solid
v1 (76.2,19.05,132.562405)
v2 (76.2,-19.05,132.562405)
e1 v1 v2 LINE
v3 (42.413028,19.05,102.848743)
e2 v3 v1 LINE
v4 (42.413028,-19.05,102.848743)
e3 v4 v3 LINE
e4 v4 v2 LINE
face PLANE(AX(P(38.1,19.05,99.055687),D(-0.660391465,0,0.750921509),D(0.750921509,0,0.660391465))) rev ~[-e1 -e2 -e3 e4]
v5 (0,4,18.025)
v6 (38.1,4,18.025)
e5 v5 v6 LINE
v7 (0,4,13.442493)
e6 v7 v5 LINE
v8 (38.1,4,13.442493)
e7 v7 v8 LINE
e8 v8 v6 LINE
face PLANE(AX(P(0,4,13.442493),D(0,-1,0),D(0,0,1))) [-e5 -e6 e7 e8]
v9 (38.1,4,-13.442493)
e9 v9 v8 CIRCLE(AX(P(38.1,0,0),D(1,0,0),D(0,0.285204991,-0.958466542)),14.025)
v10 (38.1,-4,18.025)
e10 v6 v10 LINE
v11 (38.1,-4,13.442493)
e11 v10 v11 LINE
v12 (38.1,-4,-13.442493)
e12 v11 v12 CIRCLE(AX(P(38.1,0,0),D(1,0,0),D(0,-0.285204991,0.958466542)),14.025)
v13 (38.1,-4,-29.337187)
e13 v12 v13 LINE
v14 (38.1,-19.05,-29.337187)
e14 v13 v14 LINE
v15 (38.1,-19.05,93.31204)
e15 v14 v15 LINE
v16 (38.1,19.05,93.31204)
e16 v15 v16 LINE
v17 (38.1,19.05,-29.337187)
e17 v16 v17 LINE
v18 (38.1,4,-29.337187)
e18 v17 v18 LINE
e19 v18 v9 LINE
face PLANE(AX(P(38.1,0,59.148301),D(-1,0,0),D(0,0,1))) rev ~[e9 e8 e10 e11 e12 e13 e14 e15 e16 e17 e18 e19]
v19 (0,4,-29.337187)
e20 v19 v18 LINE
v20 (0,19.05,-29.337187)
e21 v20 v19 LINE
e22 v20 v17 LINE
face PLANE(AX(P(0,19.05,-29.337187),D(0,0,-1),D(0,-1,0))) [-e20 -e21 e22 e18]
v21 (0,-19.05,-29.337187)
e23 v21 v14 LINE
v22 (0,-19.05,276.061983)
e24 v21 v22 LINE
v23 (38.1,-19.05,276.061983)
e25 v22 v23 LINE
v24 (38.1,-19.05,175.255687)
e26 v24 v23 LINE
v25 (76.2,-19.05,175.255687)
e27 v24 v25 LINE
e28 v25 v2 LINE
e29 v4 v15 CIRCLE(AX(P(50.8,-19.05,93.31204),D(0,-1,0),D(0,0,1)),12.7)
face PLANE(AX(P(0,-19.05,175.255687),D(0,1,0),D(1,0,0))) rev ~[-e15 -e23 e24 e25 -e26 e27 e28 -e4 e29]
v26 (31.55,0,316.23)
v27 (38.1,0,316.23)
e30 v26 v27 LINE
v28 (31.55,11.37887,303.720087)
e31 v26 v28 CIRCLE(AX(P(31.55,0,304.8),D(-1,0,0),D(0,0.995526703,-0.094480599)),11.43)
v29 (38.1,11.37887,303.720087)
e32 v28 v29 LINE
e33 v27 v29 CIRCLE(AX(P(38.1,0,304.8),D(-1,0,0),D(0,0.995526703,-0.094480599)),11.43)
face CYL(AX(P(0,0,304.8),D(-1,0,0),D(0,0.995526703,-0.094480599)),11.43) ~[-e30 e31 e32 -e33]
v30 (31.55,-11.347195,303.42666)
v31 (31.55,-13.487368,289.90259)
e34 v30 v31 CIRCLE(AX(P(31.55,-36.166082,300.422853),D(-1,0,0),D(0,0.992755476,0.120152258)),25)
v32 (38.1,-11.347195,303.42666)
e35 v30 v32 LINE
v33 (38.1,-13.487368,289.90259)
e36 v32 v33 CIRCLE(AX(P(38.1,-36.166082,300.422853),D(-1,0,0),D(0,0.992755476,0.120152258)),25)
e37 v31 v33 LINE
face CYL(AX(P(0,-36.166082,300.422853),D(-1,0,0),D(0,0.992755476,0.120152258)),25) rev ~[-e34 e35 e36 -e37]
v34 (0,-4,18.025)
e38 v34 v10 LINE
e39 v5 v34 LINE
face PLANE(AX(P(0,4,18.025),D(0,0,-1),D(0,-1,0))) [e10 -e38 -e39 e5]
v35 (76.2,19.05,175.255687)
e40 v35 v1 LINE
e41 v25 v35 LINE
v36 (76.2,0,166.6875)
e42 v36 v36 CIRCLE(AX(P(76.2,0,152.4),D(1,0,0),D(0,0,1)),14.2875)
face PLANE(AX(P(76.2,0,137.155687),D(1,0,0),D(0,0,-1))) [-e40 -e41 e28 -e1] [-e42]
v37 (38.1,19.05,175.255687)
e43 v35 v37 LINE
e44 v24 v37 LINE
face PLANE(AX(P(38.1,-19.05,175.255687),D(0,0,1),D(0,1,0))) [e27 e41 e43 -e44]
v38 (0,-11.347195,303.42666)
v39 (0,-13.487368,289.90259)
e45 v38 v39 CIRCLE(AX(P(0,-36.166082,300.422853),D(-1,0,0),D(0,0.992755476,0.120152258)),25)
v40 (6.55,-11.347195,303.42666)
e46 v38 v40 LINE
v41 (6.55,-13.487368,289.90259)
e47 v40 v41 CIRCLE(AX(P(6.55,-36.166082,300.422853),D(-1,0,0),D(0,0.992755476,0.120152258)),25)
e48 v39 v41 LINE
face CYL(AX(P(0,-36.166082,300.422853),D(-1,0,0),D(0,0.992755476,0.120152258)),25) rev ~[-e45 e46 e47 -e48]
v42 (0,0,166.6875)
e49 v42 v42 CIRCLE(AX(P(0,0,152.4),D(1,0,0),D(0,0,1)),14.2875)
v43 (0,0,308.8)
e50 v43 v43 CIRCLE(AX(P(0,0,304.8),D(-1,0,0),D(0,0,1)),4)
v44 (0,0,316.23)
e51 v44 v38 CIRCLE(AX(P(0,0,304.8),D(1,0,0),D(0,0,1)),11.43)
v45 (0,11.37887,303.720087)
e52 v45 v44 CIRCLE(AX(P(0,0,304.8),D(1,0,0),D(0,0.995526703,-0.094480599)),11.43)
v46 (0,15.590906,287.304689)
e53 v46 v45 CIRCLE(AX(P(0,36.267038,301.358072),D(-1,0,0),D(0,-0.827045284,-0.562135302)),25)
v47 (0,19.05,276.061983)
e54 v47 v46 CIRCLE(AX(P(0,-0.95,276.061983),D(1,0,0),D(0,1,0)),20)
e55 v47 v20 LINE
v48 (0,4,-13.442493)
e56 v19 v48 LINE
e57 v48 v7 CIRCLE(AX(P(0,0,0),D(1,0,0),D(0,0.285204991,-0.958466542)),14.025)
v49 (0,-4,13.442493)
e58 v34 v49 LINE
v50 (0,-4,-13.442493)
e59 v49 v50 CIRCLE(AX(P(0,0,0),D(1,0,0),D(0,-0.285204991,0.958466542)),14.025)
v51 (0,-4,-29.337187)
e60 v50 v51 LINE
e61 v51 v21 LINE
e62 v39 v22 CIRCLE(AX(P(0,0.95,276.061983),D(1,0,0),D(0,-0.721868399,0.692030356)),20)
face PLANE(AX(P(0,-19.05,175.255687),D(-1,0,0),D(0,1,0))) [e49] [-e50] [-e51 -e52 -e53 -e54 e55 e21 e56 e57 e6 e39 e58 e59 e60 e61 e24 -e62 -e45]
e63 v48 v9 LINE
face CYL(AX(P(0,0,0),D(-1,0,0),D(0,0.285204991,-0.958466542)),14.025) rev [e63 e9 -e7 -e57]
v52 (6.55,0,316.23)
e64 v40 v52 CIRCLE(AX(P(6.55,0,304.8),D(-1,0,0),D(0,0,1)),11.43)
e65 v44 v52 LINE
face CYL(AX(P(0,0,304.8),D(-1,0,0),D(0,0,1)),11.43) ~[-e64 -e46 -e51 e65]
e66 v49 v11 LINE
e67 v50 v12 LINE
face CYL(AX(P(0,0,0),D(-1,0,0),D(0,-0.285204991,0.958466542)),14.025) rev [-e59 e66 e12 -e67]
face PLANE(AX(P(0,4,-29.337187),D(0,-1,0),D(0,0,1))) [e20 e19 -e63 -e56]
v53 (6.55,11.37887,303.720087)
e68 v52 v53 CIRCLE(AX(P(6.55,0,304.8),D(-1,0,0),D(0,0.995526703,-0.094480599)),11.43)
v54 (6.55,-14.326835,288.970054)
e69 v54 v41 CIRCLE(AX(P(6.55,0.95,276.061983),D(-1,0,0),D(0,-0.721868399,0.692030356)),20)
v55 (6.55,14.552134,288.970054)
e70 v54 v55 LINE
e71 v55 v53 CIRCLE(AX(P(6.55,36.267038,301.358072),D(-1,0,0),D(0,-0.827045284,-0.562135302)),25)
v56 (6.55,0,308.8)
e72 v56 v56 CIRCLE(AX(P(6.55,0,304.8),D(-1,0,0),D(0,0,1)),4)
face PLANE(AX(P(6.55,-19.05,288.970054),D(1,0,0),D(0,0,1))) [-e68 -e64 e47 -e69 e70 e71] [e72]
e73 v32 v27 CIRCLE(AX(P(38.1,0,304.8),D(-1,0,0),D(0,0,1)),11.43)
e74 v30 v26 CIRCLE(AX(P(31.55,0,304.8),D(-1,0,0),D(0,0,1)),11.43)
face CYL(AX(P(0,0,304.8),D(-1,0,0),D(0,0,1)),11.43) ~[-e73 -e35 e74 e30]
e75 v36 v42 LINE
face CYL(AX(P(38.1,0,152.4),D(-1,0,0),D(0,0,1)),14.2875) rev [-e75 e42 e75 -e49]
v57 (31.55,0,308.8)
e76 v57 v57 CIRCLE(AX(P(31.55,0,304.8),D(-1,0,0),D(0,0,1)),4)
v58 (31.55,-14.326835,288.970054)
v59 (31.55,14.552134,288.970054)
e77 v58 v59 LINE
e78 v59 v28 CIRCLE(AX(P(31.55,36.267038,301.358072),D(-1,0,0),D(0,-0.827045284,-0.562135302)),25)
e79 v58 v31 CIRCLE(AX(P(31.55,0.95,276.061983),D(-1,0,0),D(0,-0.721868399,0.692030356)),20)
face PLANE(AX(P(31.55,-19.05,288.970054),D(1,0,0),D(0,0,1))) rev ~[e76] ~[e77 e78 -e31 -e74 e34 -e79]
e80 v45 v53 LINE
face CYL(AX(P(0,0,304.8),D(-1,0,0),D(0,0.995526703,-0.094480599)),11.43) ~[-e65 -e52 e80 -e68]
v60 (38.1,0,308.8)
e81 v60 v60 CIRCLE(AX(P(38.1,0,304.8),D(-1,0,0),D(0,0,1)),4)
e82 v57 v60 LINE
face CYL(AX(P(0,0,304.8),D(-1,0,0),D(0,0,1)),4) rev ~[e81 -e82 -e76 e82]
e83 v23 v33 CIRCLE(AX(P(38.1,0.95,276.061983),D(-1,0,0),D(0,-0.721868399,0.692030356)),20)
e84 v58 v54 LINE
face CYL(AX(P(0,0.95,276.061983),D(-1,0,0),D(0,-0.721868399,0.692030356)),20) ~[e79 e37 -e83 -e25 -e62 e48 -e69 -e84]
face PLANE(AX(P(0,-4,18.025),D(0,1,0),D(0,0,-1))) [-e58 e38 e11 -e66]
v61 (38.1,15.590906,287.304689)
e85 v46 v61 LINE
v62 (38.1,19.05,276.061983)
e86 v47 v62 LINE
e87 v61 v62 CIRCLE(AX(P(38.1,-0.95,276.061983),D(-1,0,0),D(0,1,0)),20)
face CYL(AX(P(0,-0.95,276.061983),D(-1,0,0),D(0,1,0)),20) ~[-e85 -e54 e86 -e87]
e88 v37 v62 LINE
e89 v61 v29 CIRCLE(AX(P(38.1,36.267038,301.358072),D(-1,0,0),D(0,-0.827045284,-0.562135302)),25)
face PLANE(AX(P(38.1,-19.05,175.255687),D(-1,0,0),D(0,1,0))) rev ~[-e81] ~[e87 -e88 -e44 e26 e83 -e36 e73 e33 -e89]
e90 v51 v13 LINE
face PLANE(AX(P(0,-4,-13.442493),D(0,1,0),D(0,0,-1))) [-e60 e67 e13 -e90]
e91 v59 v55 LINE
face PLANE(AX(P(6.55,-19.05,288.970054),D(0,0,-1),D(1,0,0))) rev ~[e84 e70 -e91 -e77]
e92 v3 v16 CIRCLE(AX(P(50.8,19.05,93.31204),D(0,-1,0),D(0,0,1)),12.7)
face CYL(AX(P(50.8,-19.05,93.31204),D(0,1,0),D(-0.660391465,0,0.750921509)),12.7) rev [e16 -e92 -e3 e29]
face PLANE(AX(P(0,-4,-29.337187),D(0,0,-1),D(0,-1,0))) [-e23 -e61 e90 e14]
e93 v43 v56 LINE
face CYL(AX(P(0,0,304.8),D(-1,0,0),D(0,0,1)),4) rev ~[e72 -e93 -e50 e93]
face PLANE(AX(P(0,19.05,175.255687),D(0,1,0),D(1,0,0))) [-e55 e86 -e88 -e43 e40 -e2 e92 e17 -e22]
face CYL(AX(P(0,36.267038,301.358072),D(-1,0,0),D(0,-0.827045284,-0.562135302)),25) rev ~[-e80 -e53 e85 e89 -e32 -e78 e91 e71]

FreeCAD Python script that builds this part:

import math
import FreeCAD as App
import Part
import Sketcher

V = App.Vector
Q = App.Units.Quantity


def edges_at(feature, points):
    """Names of the edges that pass closest to the given points."""
    edges = feature.Shape.Edges
    near = lambda p: min(range(len(edges)), key=lambda i: edges[i].distToShape(Part.Vertex(*p))[0])
    return sorted({f"Edge{near(p) + 1}" for p in points})


def add_polygon(sketch, points):
    """Adds a closed chain of lines whose ends are joined by coincident constraints."""
    first, n = sketch.GeometryCount, len(points)
    for a, b in zip(points, points[1:] + points[:1]):
        sketch.addGeometry(Part.LineSegment(App.Vector(*a, 0), App.Vector(*b, 0)), False)
    for i in range(n):
        sketch.addConstraint(Sketcher.Constraint("Coincident", first + i, 2, first + (i + 1) % n, 1))

doc = App.newDocument("Part")
params = doc.addObject("Spreadsheet::Sheet", "Params")
for row, (alias, value) in enumerate([
    ("sketch1_diameter", "1.125 in"),
    ("sketch1_width", "1.5 in"),
    ("pad1_length", "1.5 in"),
    ("sketch2_height", "3 in"),
    ("sketch2_diameter", "1.125 in"),
    ("sketch2_width", "1.5 in"),
    ("pad2_length", "1.5 in"),
    ("pocket1_length", "1.5 in"),
    ("fillet_radius", "0.5 in"),
    ("sketch4_width", "1.5 in"),
    ("pad3_length", "6 in"),
    ("sketch5_radius", "0.45 in"),
    ("pocket2_length", "6 in"),
    ("pocket3_length", "6 in"),
], start=1):
    params.set(f"A{row}", alias)
    params.set(f"B{row}", "=" + value)
    params.setAlias(f"B{row}", alias)

body = doc.addObject("PartDesign::Body", "Body")

# Sketch on YZ plane
sketch1 = doc.addObject("Sketcher::SketchObject", "Sketch")
body.addObject(sketch1)
sketch1.AttachmentSupport = (doc.YZ_Plane, [""])
sketch1.MapMode = "FlatFace"
sketch1.addGeometry([
    Part.LineSegment(V(-19.1, 175.3, 0), V(-19.1, -29.3, 0)),  # 0
    Part.LineSegment(V(-19.1, -29.3, 0), V(-4, -29.3, 0)),  # 1
    Part.LineSegment(V(-4, -29.3, 0), V(-4, -13.4, 0)),  # 2
    Part.ArcOfCircle(Part.Circle(V(0, 0, 0), V(0, 0, 1), 14), math.radians(107), math.radians(253)),  # 3
    Part.LineSegment(V(-4, 13.4, 0), V(-4, 18, 0)),  # 4
    Part.LineSegment(V(-4, 18, 0), V(4, 18, 0)),  # 5
    Part.LineSegment(V(4, 18, 0), V(4, 13.4, 0)),  # 6
    Part.ArcOfCircle(Part.Circle(V(0, 0, 0), V(0, 0, 1), 14), math.radians(-73), math.radians(73)),  # 7
    Part.LineSegment(V(4, -13.4, 0), V(4, -29.3, 0)),  # 8
    Part.LineSegment(V(4, -29.3, 0), V(19.1, -29.3, 0)),  # 9
    Part.LineSegment(V(19.1, -29.3, 0), V(19.1, 175.3, 0)),  # 10
    Part.LineSegment(V(19.1, 175.3, 0), V(-19.1, 175.3, 0)),  # 11
    Part.Circle(V(0, 152.4, 0), V(0, 0, 1), 14.3),  # 12
], False)
sketch1.addConstraint([
    Sketcher.Constraint("Coincident", 0, 2, 1, 1),
    Sketcher.Constraint("Coincident", 1, 2, 2, 1),
    Sketcher.Constraint("Coincident", 2, 2, 3, 2),
    Sketcher.Constraint("Coincident", 3, 1, 4, 1),
    Sketcher.Constraint("Coincident", 4, 2, 5, 1),
    Sketcher.Constraint("Coincident", 5, 2, 6, 1),
    Sketcher.Constraint("Coincident", 6, 2, 7, 2),
    Sketcher.Constraint("Coincident", 7, 1, 8, 1),
    Sketcher.Constraint("Coincident", 8, 2, 9, 1),
    Sketcher.Constraint("Coincident", 9, 2, 10, 1),
    Sketcher.Constraint("Coincident", 10, 2, 11, 1),
    Sketcher.Constraint("Coincident", 11, 2, 0, 1),
    Sketcher.Constraint("Vertical", 0),
    Sketcher.Constraint("Horizontal", 1),
    Sketcher.Constraint("Vertical", 2),
    Sketcher.Constraint("Vertical", 4),
    Sketcher.Constraint("Horizontal", 5),
    Sketcher.Constraint("Vertical", 6),
    Sketcher.Constraint("Vertical", 8),
    Sketcher.Constraint("Horizontal", 9),
    Sketcher.Constraint("Vertical", 10),
    Sketcher.Constraint("Horizontal", 11),
    Sketcher.Constraint("Coincident", 3, 3, -1, 1),
    Sketcher.Constraint("Coincident", 7, 3, -1, 1),
    Sketcher.Constraint("Equal", 3, 7),
    Sketcher.Constraint("Symmetric", 1, 2, 8, 2, -2),
    Sketcher.Constraint("PointOnObject", 12, 3, -2),
    Sketcher.Constraint("Horizontal", 3, 1, 6, 2),
    Sketcher.Constraint("Vertical", 2, 2, 3, 1),
    Sketcher.Constraint("Equal", 1, 9),
    Sketcher.Constraint("Diameter", 12, Q("1.125 in")),
    Sketcher.Constraint("DistanceX", 11, 2, 11, 1, Q("1.5 in")),
    Sketcher.Constraint("DistanceY", -1, 1, 12, 3, Q("6 in")),
    Sketcher.Constraint("Radius", 3, 14.025),
    Sketcher.Constraint("DistanceX", 1, 1, 1, 2, 15.05),
    Sketcher.Constraint("DistanceY", -1, 1, 4, 2, 18.025),
    Sketcher.Constraint("DistanceY", 0, 2, 0, 1, 204.592874),
    Sketcher.Constraint("DistanceY", 2, 1, 2, 2, 15.894693),
])
sketch1.setExpression("Constraints[30]", "Params.sketch1_diameter")
sketch1.setExpression("Constraints[31]", "Params.sketch1_width")
pad1 = doc.addObject("PartDesign::Pad", "Pad")
body.addObject(pad1)
pad1.Profile = sketch1
pad1.setExpression("Length", "Params.pad1_length")

# Sketch on YZ plane
sketch2 = doc.addObject("Sketcher::SketchObject", "Sketch001")
body.addObject(sketch2)
sketch2.AttachmentSupport = (doc.YZ_Plane, [""])
sketch2.MapMode = "FlatFace"
sketch2.AttachmentOffset = App.Placement(V(0, 0, 1.5 * 25.4), App.Rotation())
add_polygon(sketch2, [(19, 175), (-19, 175), (-19, 99), (19, 99)])  # lines 0-3
sketch2.addGeometry(Part.Circle(V(0, 152, 0), V(0, 0, 1), 14), False)  # 4
sketch2.addConstraint([
    Sketcher.Constraint("Horizontal", 0),
    Sketcher.Constraint("Vertical", 1),
    Sketcher.Constraint("Horizontal", 2),
    Sketcher.Constraint("Vertical", 3),
    Sketcher.Constraint("PointOnObject", 4, 3, -2),
    Sketcher.Constraint("DistanceY", 1, 2, 1, 1, Q("3 in")),
    Sketcher.Constraint("Diameter", 4, Q("1.125 in")),
    Sketcher.Constraint("DistanceX", 0, 2, 0, 1, Q("1.5 in")),
    Sketcher.Constraint("DistanceY", -1, 1, 4, 3, Q("6 in")),
    Sketcher.Constraint("DistanceX", 0, 2, -1, 1, Q("0.75 in")),
    Sketcher.Constraint("DistanceY", -1, 1, 0, 2, 175.255687),
])
sketch2.setExpression("Constraints[9]", "Params.sketch2_height")
sketch2.setExpression("Constraints[10]", "Params.sketch2_diameter")
sketch2.setExpression("Constraints[11]", "Params.sketch2_width")
pad2 = doc.addObject("PartDesign::Pad", "Pad001")
body.addObject(pad2)
pad2.Profile = sketch2
pad2.setExpression("Length", "Params.pad2_length")

# Sketch on XZ plane
sketch3 = doc.addObject("Sketcher::SketchObject", "Sketch002")
body.addObject(sketch3)
sketch3.AttachmentSupport = (doc.XZ_Plane, [""])
sketch3.MapMode = "FlatFace"
sketch3.AttachmentOffset = App.Placement(V(0, 0, -0.75 * 25.4), App.Rotation())
add_polygon(sketch3, [(38, 99), (76, 133), (94, 84)])  # lines 0-2
sketch3.addConstraint([
    Sketcher.Constraint("DistanceX", -1, 1, 0, 2, Q("3 in")),
    Sketcher.Constraint("DistanceX", -1, 1, 2, 2, Q("1.5 in")),
    Sketcher.Constraint("Distance", 0, 50.73766),
    Sketcher.Constraint("DistanceX", -1, 1, 1, 2, 94.277322),
    Sketcher.Constraint("DistanceY", 1, 2, 2, 2, 14.606459),
    Sketcher.Constraint("DistanceY", -1, 1, 0, 2, 132.562405),
])
pocket1 = doc.addObject("PartDesign::Pocket", "Pocket")
body.addObject(pocket1)
pocket1.Profile = sketch3
pocket1.setExpression("Length", "Params.pocket1_length")
pocket1.Reversed = True
doc.recompute()

fillet = doc.addObject("PartDesign::Fillet", "Fillet")
body.addObject(fillet)
fillet.Base = (pocket1, edges_at(pocket1, [(38.1, 0, 99.056)]))
fillet.setExpression("Radius", "Params.fillet_radius")

# Sketch on XY plane
sketch4 = doc.addObject("Sketcher::SketchObject", "Sketch003")
body.addObject(sketch4)
sketch4.AttachmentSupport = (doc.XY_Plane, [""])
sketch4.MapMode = "FlatFace"
sketch4.AttachmentOffset = App.Placement(V(0, 0, 175.255687), App.Rotation())
add_polygon(sketch4, [(0, 19), (0, -19), (38, -19), (38, 19)])  # lines 0-3
sketch4.addConstraint([
    Sketcher.Constraint("Vertical", 0),
    Sketcher.Constraint("Horizontal", 1),
    Sketcher.Constraint("Vertical", 2),
    Sketcher.Constraint("Horizontal", 3),
    Sketcher.Constraint("Symmetric", 0, 2, 3, 2, -1, 1),
    Sketcher.Constraint("Equal", 3, 0),
    Sketcher.Constraint("DistanceX", 1, 1, 1, 2, Q("1.5 in")),
])
sketch4.setExpression("Constraints[10]", "Params.sketch4_width")
pad3 = doc.addObject("PartDesign::Pad", "Pad002")
body.addObject(pad3)
pad3.Profile = sketch4
pad3.setExpression("Length", "Params.pad3_length")

# Sketch on YZ plane
sketch5 = doc.addObject("Sketcher::SketchObject", "Sketch004")
body.addObject(sketch5)
sketch5.AttachmentSupport = (doc.YZ_Plane, [""])
sketch5.MapMode = "FlatFace"
sketch5.addGeometry([
    Part.LineSegment(V(26.7, 276.1, 0), V(19.1, 276.1, 0)),  # 0
    Part.ArcOfCircle(Part.Circle(V(-1, 276.1, 0), V(0, 0, 1), 20), math.radians(0), math.radians(34)),  # 1
    Part.ArcOfCircle(Part.Circle(V(36.3, 301.4, 0), V(0, 0, 1), 25), math.radians(175), math.radians(214)),  # 2
    Part.ArcOfCircle(Part.Circle(V(0, 304.8, 0), V(0, 0, 1), 11.4), math.radians(-5), math.radians(90)),  # 3
    Part.ArcOfCircle(Part.Circle(V(0, 304.8, 0), V(0, 0, 1), 11.4), math.radians(90), math.radians(187)),  # 4
    Part.ArcOfCircle(Part.Circle(V(-36.2, 300.4, 0), V(0, 0, 1), 25), math.radians(-25), math.radians(7)),  # 5
    Part.ArcOfCircle(Part.Circle(V(1, 276.1, 0), V(0, 0, 1), 20), math.radians(136), math.radians(180)),  # 6
    Part.LineSegment(V(-19.1, 276.1, 0), V(-31.4, 276.1, 0)),  # 7
    Part.LineSegment(V(-31.4, 276.1, 0), V(-31.4, 335, 0)),  # 8
    Part.LineSegment(V(-31.4, 335, 0), V(26.7, 335, 0)),  # 9
    Part.LineSegment(V(26.7, 335, 0), V(26.7, 276.1, 0)),  # 10
    Part.Circle(V(0, 304.8, 0), V(0, 0, 1), 4),  # 11
], False)
sketch5.addConstraint([
    Sketcher.Constraint("Coincident", 0, 2, 1, 1),
    Sketcher.Constraint("Tangent", 1, 2, 2, 2),
    Sketcher.Constraint("Tangent", 2, 1, 3, 1),
    Sketcher.Constraint("Tangent", 3, 2, 4, 1),
    Sketcher.Constraint("Tangent", 4, 2, 5, 2),
    Sketcher.Constraint("Coincident", 5, 1, 6, 1),
    Sketcher.Constraint("Coincident", 6, 2, 7, 1),
    Sketcher.Constraint("Coincident", 7, 2, 8, 1),
    Sketcher.Constraint("Coincident", 8, 2, 9, 1),
    Sketcher.Constraint("Coincident", 9, 2, 10, 1),
    Sketcher.Constraint("Coincident", 10, 2, 0, 1),
    Sketcher.Constraint("Horizontal", 0),
    Sketcher.Constraint("Horizontal", 7),
    Sketcher.Constraint("Vertical", 8),
    Sketcher.Constraint("Horizontal", 9),
    Sketcher.Constraint("Vertical", 10),
    Sketcher.Constraint("Coincident", 11, 3, 3, 3),
    Sketcher.Constraint("Equal", 3, 4),
    Sketcher.Constraint("Equal", 2, 5),
    Sketcher.Constraint("Equal", 1, 6),
    Sketcher.Constraint("Symmetric", 1, 3, 6, 3, -2),
    Sketcher.Constraint("PointOnObject", 3, 3, -2),
    Sketcher.Constraint("PointOnObject", 3, 2, -2),
    Sketcher.Constraint("Horizontal", 6, 3, 0, 2),
    Sketcher.Constraint("Horizontal", 0, 2, 6, 2),
    Sketcher.Constraint("Radius", 3, Q("0.45 in")),
    Sketcher.Constraint("DistanceY", -1, 1, 3, 3, Q("12 in")),
    Sketcher.Constraint("Diameter", 11, 8.0),
    Sketcher.Constraint("DistanceX", -1, 1, 0, 2, Q("0.75 in")),
    Sketcher.Constraint("Radius", 1, 20.0),
    Sketcher.Constraint("Radius", 2, 25.0),
    Sketcher.Constraint("DistanceY", 8, 1, 8, 2, 58.976239),
    Sketcher.Constraint("DistanceX", 0, 2, 0, 1, 7.691788),
    Sketcher.Constraint("DistanceX", 7, 2, 7, 1, 12.376857),
    Sketcher.Constraint("DistanceY", -1, 1, 2, 3, 301.358072),
    Sketcher.Constraint("DistanceX", 5, 3, -1, 1, 36.166082),
])
sketch5.setExpression("Constraints[25]", "Params.sketch5_radius")
pocket2 = doc.addObject("PartDesign::Pocket", "Pocket001")
body.addObject(pocket2)
pocket2.Profile = sketch5
pocket2.setExpression("Length", "Params.pocket2_length")
pocket2.Reversed = True

# Sketch on XZ plane
sketch6 = doc.addObject("Sketcher::SketchObject", "Sketch005")
body.addObject(sketch6)
sketch6.AttachmentSupport = (doc.XZ_Plane, [""])
sketch6.MapMode = "FlatFace"
sketch6.AttachmentOffset = App.Placement(V(0, 0, 0.75 * 25.4), App.Rotation())
add_polygon(sketch6, [(7, 343), (7, 289), (32, 289), (32, 343)])  # lines 0-3
sketch6.addConstraint([
    Sketcher.Constraint("Vertical", 0),
    Sketcher.Constraint("Horizontal", 1),
    Sketcher.Constraint("Vertical", 2),
    Sketcher.Constraint("Horizontal", 3),
    Sketcher.Constraint("DistanceX", 1, 1, 1, 2, 25.0),
    Sketcher.Constraint("DistanceY", 0, 2, 0, 1, 54.519891),
    Sketcher.Constraint("DistanceX", -1, 1, 0, 2, 6.55),
    Sketcher.Constraint("DistanceY", -1, 1, 0, 2, 288.970054),
])
pocket3 = doc.addObject("PartDesign::Pocket", "Pocket002")
body.addObject(pocket3)
pocket3.Profile = sketch6
pocket3.setExpression("Length", "Params.pocket3_length")

doc.recompute()
